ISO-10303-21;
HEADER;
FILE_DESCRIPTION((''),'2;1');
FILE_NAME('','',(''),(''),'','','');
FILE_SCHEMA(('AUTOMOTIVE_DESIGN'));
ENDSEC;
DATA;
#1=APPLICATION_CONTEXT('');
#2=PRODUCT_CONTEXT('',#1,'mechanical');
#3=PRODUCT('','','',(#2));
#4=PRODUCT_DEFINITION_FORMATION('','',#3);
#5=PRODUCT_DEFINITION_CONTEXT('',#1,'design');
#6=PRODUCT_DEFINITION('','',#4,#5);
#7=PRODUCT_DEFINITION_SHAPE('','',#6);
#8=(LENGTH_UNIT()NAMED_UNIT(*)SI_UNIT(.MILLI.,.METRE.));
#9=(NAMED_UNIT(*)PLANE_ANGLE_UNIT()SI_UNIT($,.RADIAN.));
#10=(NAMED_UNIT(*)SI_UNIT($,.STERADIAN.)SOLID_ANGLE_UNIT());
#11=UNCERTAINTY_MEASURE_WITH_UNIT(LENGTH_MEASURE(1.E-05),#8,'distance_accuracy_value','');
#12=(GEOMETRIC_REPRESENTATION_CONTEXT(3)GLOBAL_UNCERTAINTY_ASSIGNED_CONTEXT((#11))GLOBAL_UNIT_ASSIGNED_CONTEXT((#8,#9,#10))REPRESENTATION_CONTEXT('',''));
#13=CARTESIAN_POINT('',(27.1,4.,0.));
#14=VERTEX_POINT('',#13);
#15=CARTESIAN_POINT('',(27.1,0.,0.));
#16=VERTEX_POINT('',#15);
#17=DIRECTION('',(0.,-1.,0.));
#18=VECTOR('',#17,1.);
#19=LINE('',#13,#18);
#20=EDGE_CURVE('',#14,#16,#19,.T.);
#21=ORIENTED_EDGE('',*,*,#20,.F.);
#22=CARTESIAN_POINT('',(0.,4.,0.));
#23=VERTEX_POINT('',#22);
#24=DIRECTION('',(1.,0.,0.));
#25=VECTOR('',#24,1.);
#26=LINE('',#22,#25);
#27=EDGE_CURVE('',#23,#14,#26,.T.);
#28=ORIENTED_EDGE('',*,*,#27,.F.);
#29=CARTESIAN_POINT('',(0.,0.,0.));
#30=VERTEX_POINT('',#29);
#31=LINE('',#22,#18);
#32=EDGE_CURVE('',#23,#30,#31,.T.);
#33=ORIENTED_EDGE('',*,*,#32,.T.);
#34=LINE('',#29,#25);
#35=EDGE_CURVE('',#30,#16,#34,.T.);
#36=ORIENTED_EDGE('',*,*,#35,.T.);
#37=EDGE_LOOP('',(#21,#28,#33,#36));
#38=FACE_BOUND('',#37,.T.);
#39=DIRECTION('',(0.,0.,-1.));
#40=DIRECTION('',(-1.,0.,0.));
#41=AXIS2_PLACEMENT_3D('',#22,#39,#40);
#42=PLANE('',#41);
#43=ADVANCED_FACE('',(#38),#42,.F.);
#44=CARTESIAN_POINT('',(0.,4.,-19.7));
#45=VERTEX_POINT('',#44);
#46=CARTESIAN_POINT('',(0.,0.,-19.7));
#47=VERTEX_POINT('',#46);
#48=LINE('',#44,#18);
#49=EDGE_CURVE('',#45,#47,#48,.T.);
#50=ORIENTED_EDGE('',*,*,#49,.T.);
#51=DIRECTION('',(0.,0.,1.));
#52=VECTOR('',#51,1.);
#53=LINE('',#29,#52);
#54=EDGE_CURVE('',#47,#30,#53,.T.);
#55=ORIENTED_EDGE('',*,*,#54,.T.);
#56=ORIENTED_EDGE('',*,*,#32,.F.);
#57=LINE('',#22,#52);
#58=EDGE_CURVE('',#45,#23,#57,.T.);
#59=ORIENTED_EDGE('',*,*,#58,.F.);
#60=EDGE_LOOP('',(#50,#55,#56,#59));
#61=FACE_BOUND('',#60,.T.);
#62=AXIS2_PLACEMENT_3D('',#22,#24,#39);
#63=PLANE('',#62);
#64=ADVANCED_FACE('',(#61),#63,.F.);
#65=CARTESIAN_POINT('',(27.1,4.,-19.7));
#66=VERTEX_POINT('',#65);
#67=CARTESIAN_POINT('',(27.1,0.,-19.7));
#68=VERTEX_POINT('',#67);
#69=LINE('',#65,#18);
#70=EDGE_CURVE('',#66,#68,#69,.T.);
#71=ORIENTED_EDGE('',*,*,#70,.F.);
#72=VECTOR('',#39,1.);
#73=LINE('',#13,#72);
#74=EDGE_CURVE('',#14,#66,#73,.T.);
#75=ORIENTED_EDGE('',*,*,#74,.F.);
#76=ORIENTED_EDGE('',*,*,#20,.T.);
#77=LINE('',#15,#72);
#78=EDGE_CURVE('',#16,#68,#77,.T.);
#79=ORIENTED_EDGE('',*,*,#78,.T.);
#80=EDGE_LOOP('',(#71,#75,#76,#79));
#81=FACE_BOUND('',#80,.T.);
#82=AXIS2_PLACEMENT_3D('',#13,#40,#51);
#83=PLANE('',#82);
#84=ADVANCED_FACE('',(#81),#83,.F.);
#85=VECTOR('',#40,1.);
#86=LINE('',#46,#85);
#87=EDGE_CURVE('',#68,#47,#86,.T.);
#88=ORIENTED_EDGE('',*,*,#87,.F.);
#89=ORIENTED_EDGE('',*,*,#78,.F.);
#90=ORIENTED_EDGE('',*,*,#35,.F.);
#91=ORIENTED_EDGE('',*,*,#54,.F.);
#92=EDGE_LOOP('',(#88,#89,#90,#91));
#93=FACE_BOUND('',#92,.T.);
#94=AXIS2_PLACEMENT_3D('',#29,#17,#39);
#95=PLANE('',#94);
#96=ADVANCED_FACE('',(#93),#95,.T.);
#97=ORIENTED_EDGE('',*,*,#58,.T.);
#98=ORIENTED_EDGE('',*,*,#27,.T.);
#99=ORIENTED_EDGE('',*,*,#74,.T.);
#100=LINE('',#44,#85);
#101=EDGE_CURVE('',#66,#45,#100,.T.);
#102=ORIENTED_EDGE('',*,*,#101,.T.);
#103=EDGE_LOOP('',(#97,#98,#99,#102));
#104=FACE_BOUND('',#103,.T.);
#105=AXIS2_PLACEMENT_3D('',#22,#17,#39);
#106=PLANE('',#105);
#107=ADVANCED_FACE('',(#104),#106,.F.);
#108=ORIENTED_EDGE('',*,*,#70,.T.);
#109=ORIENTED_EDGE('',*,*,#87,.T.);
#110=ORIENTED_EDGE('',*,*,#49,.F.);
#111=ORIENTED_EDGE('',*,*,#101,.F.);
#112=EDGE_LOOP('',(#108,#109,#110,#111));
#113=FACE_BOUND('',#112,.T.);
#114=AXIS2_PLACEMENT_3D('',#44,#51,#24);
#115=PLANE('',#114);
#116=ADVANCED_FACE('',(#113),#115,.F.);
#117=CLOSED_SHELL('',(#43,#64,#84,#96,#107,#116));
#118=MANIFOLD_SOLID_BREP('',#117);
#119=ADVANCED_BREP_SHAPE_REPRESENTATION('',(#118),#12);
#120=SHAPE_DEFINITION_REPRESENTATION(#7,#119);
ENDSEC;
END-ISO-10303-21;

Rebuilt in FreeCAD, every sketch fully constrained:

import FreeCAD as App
import Part
import Sketcher
from FreeCAD import Vector
Q = App.Units.Quantity

doc = App.newDocument("Part")
body = doc.addObject("PartDesign::Body", "Body")

# Sketch on XZ plane
sketch1 = doc.addObject("Sketcher::SketchObject", "Sketch")
body.addObject(sketch1)
sketch1.AttachmentSupport = (doc.XZ_Plane, [""])
sketch1.MapMode = "FlatFace"
sketch1.addGeometry([
    Part.LineSegment(Vector(0, -20, 0), Vector(0, 0, 0)),
    Part.LineSegment(Vector(0, 0, 0), Vector(27, 0, 0)),
    Part.LineSegment(Vector(27, 0, 0), Vector(27, -20, 0)),
    Part.LineSegment(Vector(27, -20, 0), Vector(0, -20, 0)),
], False)
sketch1.addConstraint([
    Sketcher.Constraint("Coincident", 0, 2, 1, 1),
    Sketcher.Constraint("Coincident", 1, 2, 2, 1),
    Sketcher.Constraint("Coincident", 2, 2, 3, 1),
    Sketcher.Constraint("Coincident", 3, 2, 0, 1),
    Sketcher.Constraint("Vertical", 0),
    Sketcher.Constraint("Horizontal", 1),
    Sketcher.Constraint("Vertical", 2),
    Sketcher.Constraint("Horizontal", 3),
    Sketcher.Constraint("Coincident", 0, 2, -1, 1),
    Sketcher.Constraint("DistanceX", 1, 1, 1, 2, Q("27.1 mm")),
    Sketcher.Constraint("DistanceY", 0, 1, 0, 2, Q("19.7 mm")),
])
pad1 = doc.addObject("PartDesign::Pad", "Pad")
body.addObject(pad1)
pad1.Profile = sketch1
pad1.Length = 4
pad1.Reversed = True

doc.recompute()
